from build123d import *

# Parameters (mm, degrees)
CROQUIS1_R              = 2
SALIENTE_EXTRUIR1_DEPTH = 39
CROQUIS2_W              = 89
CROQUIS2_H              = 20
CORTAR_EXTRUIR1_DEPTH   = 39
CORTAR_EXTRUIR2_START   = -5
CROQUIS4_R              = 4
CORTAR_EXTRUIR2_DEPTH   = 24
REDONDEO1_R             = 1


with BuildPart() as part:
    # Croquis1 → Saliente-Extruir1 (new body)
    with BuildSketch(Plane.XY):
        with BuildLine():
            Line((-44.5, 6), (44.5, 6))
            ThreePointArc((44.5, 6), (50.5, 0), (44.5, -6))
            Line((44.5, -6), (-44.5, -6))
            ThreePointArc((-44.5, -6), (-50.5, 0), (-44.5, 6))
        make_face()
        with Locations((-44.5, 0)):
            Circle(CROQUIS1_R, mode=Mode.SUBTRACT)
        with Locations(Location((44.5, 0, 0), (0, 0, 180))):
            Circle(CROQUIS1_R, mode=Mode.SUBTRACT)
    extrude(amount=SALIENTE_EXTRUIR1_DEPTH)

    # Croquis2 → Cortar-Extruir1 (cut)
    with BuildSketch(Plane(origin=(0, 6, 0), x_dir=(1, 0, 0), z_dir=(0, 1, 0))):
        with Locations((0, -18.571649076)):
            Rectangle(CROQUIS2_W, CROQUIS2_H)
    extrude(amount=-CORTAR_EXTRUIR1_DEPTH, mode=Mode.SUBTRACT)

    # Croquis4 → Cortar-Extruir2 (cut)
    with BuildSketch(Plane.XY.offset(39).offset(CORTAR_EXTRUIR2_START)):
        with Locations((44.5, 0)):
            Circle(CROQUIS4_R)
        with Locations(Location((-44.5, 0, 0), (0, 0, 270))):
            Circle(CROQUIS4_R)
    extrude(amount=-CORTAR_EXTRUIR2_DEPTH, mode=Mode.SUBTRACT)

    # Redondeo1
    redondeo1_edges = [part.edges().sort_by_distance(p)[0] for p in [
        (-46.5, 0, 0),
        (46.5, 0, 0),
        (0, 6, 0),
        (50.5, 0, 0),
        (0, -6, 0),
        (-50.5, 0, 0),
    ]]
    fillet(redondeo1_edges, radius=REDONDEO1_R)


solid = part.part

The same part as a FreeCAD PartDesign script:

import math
import FreeCAD as App
import Part
import Sketcher

V = App.Vector


def edges_at(feature, points):
    """Names of the edges that pass closest to the given points."""
    edges = feature.Shape.Edges
    near = lambda p: min(range(len(edges)), key=lambda i: edges[i].distToShape(Part.Vertex(*p))[0])
    return sorted({f"Edge{near(p) + 1}" for p in points})

doc = App.newDocument("Part")
body = doc.addObject("PartDesign::Body", "Body")

sketch1 = doc.addObject("Sketcher::SketchObject", "Sketch")
body.addObject(sketch1)
sketch1.AttachmentSupport = (doc.XY_Plane, [""])
sketch1.MapMode = "FlatFace"
sketch1.addGeometry(Part.LineSegment(V(44.5, 6, 0), V(-44.5, 6, 0)), False)
sketch1.addGeometry(Part.ArcOfCircle(Part.Circle(V(-44.5, 0, 0), V(0, 0, 1), 6), math.radians(90), math.radians(270)), False)
sketch1.addGeometry(Part.LineSegment(V(-44.5, -6, 0), V(44.5, -6, 0)), False)
sketch1.addGeometry(Part.ArcOfCircle(Part.Circle(V(44.5, 0, 0), V(0, 0, 1), 6), math.radians(-90), math.radians(90)), False)
sketch1.addGeometry(Part.Circle(V(44.5, 0, 0), V(0, 0, 1), 2), False)
sketch1.addGeometry(Part.Circle(V(-44.5, 0, 0), V(0, 0, 1), 2), False)
sketch1.addConstraint(Sketcher.Constraint("Tangent", 0, 2, 1, 1))
sketch1.addConstraint(Sketcher.Constraint("Tangent", 1, 2, 2, 1))
sketch1.addConstraint(Sketcher.Constraint("Tangent", 2, 2, 3, 1))
sketch1.addConstraint(Sketcher.Constraint("Tangent", 3, 2, 0, 1))
sketch1.addConstraint(Sketcher.Constraint("Horizontal", 0))
sketch1.addConstraint(Sketcher.Constraint("Horizontal", 2))
sketch1.addConstraint(Sketcher.Constraint("Coincident", 4, 3, 3, 3))
sketch1.addConstraint(Sketcher.Constraint("Coincident", 5, 3, 1, 3))
sketch1.addConstraint(Sketcher.Constraint("Equal", 4, 5))
sketch1.addConstraint(Sketcher.Constraint("Symmetric", 1, 3, 3, 3, -1, 1))
sketch1.addConstraint(Sketcher.Constraint("Diameter", 4, 4.0))
sketch1.addConstraint(Sketcher.Constraint("Radius", 1, 6.0))
sketch1.addConstraint(Sketcher.Constraint("DistanceX", 0, 2, 0, 1, 89.0))
pad1 = doc.addObject("PartDesign::Pad", "Pad")
body.addObject(pad1)
pad1.Profile = sketch1
pad1.Length = 39

sketch2 = doc.addObject("Sketcher::SketchObject", "Sketch001")
body.addObject(sketch2)
sketch2.AttachmentSupport = (doc.XZ_Plane, [""])
sketch2.MapMode = "FlatFace"
sketch2.AttachmentOffset = App.Placement(V(0, 0, -6), App.Rotation())
sketch2.addGeometry(Part.LineSegment(V(-44, 9, 0), V(-44, 29, 0)), False)
sketch2.addGeometry(Part.LineSegment(V(-44, 29, 0), V(44, 29, 0)), False)
sketch2.addGeometry(Part.LineSegment(V(44, 29, 0), V(44, 9, 0)), False)
sketch2.addGeometry(Part.LineSegment(V(44, 9, 0), V(-44, 9, 0)), False)
sketch2.addConstraint(Sketcher.Constraint("Coincident", 0, 2, 1, 1))
sketch2.addConstraint(Sketcher.Constraint("Coincident", 1, 2, 2, 1))
sketch2.addConstraint(Sketcher.Constraint("Coincident", 2, 2, 3, 1))
sketch2.addConstraint(Sketcher.Constraint("Coincident", 3, 2, 0, 1))
sketch2.addConstraint(Sketcher.Constraint("Vertical", 0))
sketch2.addConstraint(Sketcher.Constraint("Horizontal", 1))
sketch2.addConstraint(Sketcher.Constraint("Vertical", 2))
sketch2.addConstraint(Sketcher.Constraint("Horizontal", 3))
sketch2.addConstraint(Sketcher.Constraint("DistanceX", 1, 1, 1, 2, 89.0))
sketch2.addConstraint(Sketcher.Constraint("DistanceY", 0, 1, 0, 2, 20.0))
sketch2.addConstraint(Sketcher.Constraint("DistanceX", 0, 2, -1, 1, 44.5))
sketch2.addConstraint(Sketcher.Constraint("DistanceY", -1, 1, 0, 2, 28.571649))
pocket1 = doc.addObject("PartDesign::Pocket", "Pocket")
body.addObject(pocket1)
pocket1.Profile = sketch2
pocket1.Length = 39
pocket1.Reversed = True

sketch3 = doc.addObject("Sketcher::SketchObject", "Sketch002")
body.addObject(sketch3)
sketch3.AttachmentSupport = (doc.XY_Plane, [""])
sketch3.MapMode = "FlatFace"
sketch3.AttachmentOffset = App.Placement(V(0, 0, 34), App.Rotation())
sketch3.addGeometry(Part.Circle(V(44.5, 0, 0), V(0, 0, 1), 4), False)
sketch3.addGeometry(Part.Circle(V(-44.5, 0, 0), V(0, 0, 1), 4), False)
sketch3.addConstraint(Sketcher.Constraint("Equal", 0, 1))
sketch3.addConstraint(Sketcher.Constraint("Symmetric", 0, 3, 1, 3, -1, 1))
sketch3.addConstraint(Sketcher.Constraint("PointOnObject", 0, 3, -1))
sketch3.addConstraint(Sketcher.Constraint("Diameter", 0, 8.0))
sketch3.addConstraint(Sketcher.Constraint("DistanceX", 1, 3, 0, 3, 89.0))
pocket2 = doc.addObject("PartDesign::Pocket", "Pocket001")
body.addObject(pocket2)
pocket2.Profile = sketch3
pocket2.Length = 24
doc.recompute()

fillet = doc.addObject("PartDesign::Fillet", "Fillet")
body.addObject(fillet)
fillet.Base = (pocket2, edges_at(pocket2, [
    (-46.5, 0, 0),
    (46.5, 0, 0),
    (0, 6, 0),
    (50.5, 0, 0),
    (0, -6, 0),
    (-50.5, 0, 0),
]))
fillet.Radius = 1

doc.recompute()
